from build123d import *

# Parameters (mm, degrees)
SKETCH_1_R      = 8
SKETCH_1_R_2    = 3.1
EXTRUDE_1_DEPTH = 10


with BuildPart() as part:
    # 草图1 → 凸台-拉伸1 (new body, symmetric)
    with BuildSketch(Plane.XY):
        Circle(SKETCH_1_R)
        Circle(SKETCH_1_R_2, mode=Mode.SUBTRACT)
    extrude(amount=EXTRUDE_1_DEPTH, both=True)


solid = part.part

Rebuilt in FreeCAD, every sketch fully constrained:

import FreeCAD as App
import Part
import Sketcher
Q = App.Units.Quantity

doc = App.newDocument("Part")
params = doc.addObject("Spreadsheet::Sheet", "Params")
for row, (alias, value) in enumerate([
    ("sketch1_diameter", "16 mm"),
    ("sketch1_diameter2", "6.2 mm"),
    ("pad1_length", "20 mm"),
], start=1):
    params.set(f"A{row}", alias)
    params.set(f"B{row}", "=" + value)
    params.setAlias(f"B{row}", alias)

body = doc.addObject("PartDesign::Body", "Body")

# Sketch on XY plane
sketch1 = body.newObject("Sketcher::SketchObject", "Sketch")
sketch1.AttachmentSupport = (doc.getObject("XY_Plane"), [""])
sketch1.MapMode = "FlatFace"
sketch1.addGeometry([
    Part.Circle(App.Vector(0, 0, 0), App.Vector(0, 0, 1), 8),
    Part.Circle(App.Vector(0, 0, 0), App.Vector(0, 0, 1), 3.1),
], False)
sketch1.addConstraint([
    Sketcher.Constraint("Coincident", 0, 3, -1, 1),
    Sketcher.Constraint("Coincident", 1, 3, -1, 1),
    Sketcher.Constraint("Diameter", 0, Q("16 mm")),
    Sketcher.Constraint("Diameter", 1, Q("6.2 mm")),
])
sketch1.setExpression("Constraints[2]", "Params.sketch1_diameter")
sketch1.setExpression("Constraints[3]", "Params.sketch1_diameter2")
pad1 = body.newObject("PartDesign::Pad", "Pad")
pad1.Profile = sketch1
pad1.setExpression("Length", "Params.pad1_length")
pad1.Midplane = True

doc.recompute()
